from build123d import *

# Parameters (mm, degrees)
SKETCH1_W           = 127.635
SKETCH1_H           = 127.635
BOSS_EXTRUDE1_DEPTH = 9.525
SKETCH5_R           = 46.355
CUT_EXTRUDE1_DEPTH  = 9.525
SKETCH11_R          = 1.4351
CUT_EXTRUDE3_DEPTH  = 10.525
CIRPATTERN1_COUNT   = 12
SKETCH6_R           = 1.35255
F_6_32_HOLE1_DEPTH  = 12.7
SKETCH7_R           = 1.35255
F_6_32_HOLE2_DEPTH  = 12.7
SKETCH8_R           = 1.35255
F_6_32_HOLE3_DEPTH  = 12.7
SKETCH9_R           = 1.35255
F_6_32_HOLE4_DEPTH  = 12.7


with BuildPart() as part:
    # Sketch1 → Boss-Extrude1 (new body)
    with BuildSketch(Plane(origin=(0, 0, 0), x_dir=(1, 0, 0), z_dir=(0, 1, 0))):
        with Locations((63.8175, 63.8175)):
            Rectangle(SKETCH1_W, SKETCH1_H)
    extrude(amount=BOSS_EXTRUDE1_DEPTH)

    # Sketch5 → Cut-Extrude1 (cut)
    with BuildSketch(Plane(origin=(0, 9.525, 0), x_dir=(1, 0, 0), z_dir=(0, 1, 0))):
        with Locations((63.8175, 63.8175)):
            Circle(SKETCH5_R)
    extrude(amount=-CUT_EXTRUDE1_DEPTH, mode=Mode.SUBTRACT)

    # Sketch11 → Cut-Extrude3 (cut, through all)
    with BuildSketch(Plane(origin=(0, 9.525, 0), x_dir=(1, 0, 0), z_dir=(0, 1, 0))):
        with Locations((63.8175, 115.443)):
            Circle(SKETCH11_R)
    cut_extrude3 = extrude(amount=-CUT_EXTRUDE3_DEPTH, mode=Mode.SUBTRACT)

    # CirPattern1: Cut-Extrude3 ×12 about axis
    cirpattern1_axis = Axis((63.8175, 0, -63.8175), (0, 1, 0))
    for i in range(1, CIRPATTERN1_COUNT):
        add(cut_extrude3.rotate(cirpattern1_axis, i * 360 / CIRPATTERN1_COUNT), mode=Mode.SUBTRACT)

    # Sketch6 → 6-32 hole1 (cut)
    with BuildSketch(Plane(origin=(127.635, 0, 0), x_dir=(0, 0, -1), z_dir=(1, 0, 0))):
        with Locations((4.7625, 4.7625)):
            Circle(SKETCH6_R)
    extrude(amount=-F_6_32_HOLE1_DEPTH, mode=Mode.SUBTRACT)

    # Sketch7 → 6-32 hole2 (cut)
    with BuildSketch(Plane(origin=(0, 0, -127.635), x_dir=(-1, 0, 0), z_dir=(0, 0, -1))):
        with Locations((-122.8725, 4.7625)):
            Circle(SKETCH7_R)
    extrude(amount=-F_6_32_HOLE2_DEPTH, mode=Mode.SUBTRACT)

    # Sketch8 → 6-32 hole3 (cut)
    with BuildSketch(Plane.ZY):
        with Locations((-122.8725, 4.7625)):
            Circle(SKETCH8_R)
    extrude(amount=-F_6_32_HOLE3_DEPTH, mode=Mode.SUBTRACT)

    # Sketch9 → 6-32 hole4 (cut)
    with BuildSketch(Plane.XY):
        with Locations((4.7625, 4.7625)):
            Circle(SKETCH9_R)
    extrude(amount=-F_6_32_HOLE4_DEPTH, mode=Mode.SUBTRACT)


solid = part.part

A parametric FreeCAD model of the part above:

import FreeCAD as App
import Part
import Sketcher

V = App.Vector
Q = App.Units.Quantity

doc = App.newDocument("Part")
body = doc.addObject("PartDesign::Body", "Body")

# Sketch on XZ plane
sketch1 = body.newObject("Sketcher::SketchObject", "Sketch")
sketch1.AttachmentSupport = (doc.getObject("XZ_Plane"), [""])
sketch1.MapMode = "FlatFace"
sketch1.addGeometry(Part.LineSegment(V(0, -128, 0), V(0, 0, 0)), False)
sketch1.addGeometry(Part.LineSegment(V(0, 0, 0), V(128, 0, 0)), False)
sketch1.addGeometry(Part.LineSegment(V(128, 0, 0), V(128, -128, 0)), False)
sketch1.addGeometry(Part.LineSegment(V(128, -128, 0), V(0, -128, 0)), False)
sketch1.addConstraint(Sketcher.Constraint("Coincident", 0, 2, 1, 1))
sketch1.addConstraint(Sketcher.Constraint("Coincident", 1, 2, 2, 1))
sketch1.addConstraint(Sketcher.Constraint("Coincident", 2, 2, 3, 1))
sketch1.addConstraint(Sketcher.Constraint("Coincident", 3, 2, 0, 1))
sketch1.addConstraint(Sketcher.Constraint("Vertical", 0))
sketch1.addConstraint(Sketcher.Constraint("Horizontal", 1))
sketch1.addConstraint(Sketcher.Constraint("Vertical", 2))
sketch1.addConstraint(Sketcher.Constraint("Horizontal", 3))
sketch1.addConstraint(Sketcher.Constraint("Coincident", 0, 2, -1, 1))
sketch1.addConstraint(Sketcher.Constraint("Equal", 3, 0))
sketch1.addConstraint(Sketcher.Constraint("DistanceX", 1, 1, 1, 2, Q("5.025 in")))
pad1 = body.newObject("PartDesign::Pad", "Pad")
pad1.Profile = sketch1
pad1.Length = Q("0.375 in")
pad1.Reversed = True

# Sketch on XZ plane
sketch2 = body.newObject("Sketcher::SketchObject", "Sketch001")
sketch2.AttachmentSupport = (doc.getObject("XZ_Plane"), [""])
sketch2.MapMode = "FlatFace"
sketch2.AttachmentOffset = App.Placement(V(0, 0, -0.375 * 25.4), App.Rotation())
sketch2.addGeometry(Part.Circle(V(64, -64, 0), V(0, 0, 1), 46), False)
sketch2.addConstraint(Sketcher.Constraint("Diameter", 0, Q("3.65 in")))
sketch2.addConstraint(Sketcher.Constraint("DistanceX", -1, 1, 0, 3, Q("2.5125 in")))
sketch2.addConstraint(Sketcher.Constraint("DistanceY", 0, 3, -1, 1, Q("2.5125 in")))
pocket1 = body.newObject("PartDesign::Pocket", "Pocket")
pocket1.Profile = sketch2
pocket1.Length = Q("0.375 in")
pocket1.Reversed = True

# Sketch on XZ plane
sketch3 = body.newObject("Sketcher::SketchObject", "Sketch002")
sketch3.AttachmentSupport = (doc.getObject("XZ_Plane"), [""])
sketch3.MapMode = "FlatFace"
sketch3.AttachmentOffset = App.Placement(V(0, 0, -0.375 * 25.4), App.Rotation())
sketch3.addGeometry(Part.Circle(V(63.8, -115.4, 0), V(0, 0, 1), 1.4), False)
sketch3.addConstraint(Sketcher.Constraint("Diameter", 0, Q("0.113 in")))
sketch3.addConstraint(Sketcher.Constraint("DistanceY", 0, 3, -1, 1, Q("4.545 in")))
sketch3.addConstraint(Sketcher.Constraint("DistanceX", -1, 1, 0, 3, Q("2.5125 in")))
pocket2 = body.newObject("PartDesign::Pocket", "Pocket001")
pocket2.Profile = sketch3
pocket2.Type = "ThroughAll"
pocket2.Reversed = True
doc.recompute()

datumline = body.newObject("PartDesign::Line", "DatumLine")
datumline.Placement = App.Placement(V(63.8175, 0, -63.8175), App.Rotation(V(0, 0, 1), V(0, 1, 0)))
polarpattern = body.newObject("PartDesign::PolarPattern", "PolarPattern")
polarpattern.Originals = [pocket2]
polarpattern.Axis = (datumline, [""])
polarpattern.Angle = 360
polarpattern.Occurrences = 12
body.Tip = polarpattern

# Sketch on YZ plane
sketch4 = body.newObject("Sketcher::SketchObject", "Sketch003")
sketch4.AttachmentSupport = (doc.getObject("YZ_Plane"), [""])
sketch4.MapMode = "FlatFace"
sketch4.AttachmentOffset = App.Placement(V(0, 0, 5.025 * 25.4), App.Rotation())
sketch4.addGeometry(Part.Circle(V(4.8, -4.8, 0), V(0, 0, 1), 1.4), False)
sketch4.addConstraint(Sketcher.Constraint("Diameter", 0, Q("0.1065 in")))
sketch4.addConstraint(Sketcher.Constraint("DistanceX", -1, 1, 0, 3, Q("0.1875 in")))
sketch4.addConstraint(Sketcher.Constraint("DistanceY", 0, 3, -1, 1, Q("0.1875 in")))
pocket3 = body.newObject("PartDesign::Pocket", "Pocket002")
pocket3.Profile = sketch4
pocket3.Length = Q("0.5 in")

# Sketch on XY plane
sketch5 = body.newObject("Sketcher::SketchObject", "Sketch004")
sketch5.AttachmentSupport = (doc.getObject("XY_Plane"), [""])
sketch5.MapMode = "FlatFace"
sketch5.AttachmentOffset = App.Placement(V(0, 0, -5.025 * 25.4), App.Rotation())
sketch5.addGeometry(Part.Circle(V(122.9, 4.8, 0), V(0, 0, 1), 1.4), False)
sketch5.addConstraint(Sketcher.Constraint("Diameter", 0, Q("0.1065 in")))
sketch5.addConstraint(Sketcher.Constraint("DistanceY", -1, 1, 0, 3, Q("0.1875 in")))
sketch5.addConstraint(Sketcher.Constraint("DistanceX", -1, 1, 0, 3, Q("4.8375 in")))
pocket4 = body.newObject("PartDesign::Pocket", "Pocket003")
pocket4.Profile = sketch5
pocket4.Length = Q("0.5 in")
pocket4.Reversed = True

# Sketch on YZ plane
sketch6 = body.newObject("Sketcher::SketchObject", "Sketch005")
sketch6.AttachmentSupport = (doc.getObject("YZ_Plane"), [""])
sketch6.MapMode = "FlatFace"
sketch6.addGeometry(Part.Circle(V(4.8, -122.9, 0), V(0, 0, 1), 1.4), False)
sketch6.addConstraint(Sketcher.Constraint("Diameter", 0, Q("0.1065 in")))
sketch6.addConstraint(Sketcher.Constraint("DistanceX", -1, 1, 0, 3, Q("0.1875 in")))
sketch6.addConstraint(Sketcher.Constraint("DistanceY", 0, 3, -1, 1, Q("4.8375 in")))
pocket5 = body.newObject("PartDesign::Pocket", "Pocket004")
pocket5.Profile = sketch6
pocket5.Length = Q("0.5 in")
pocket5.Reversed = True

# Sketch on XY plane
sketch7 = body.newObject("Sketcher::SketchObject", "Sketch006")
sketch7.AttachmentSupport = (doc.getObject("XY_Plane"), [""])
sketch7.MapMode = "FlatFace"
sketch7.addGeometry(Part.Circle(V(4.8, 4.8, 0), V(0, 0, 1), 1.4), False)
sketch7.addConstraint(Sketcher.Constraint("Diameter", 0, Q("0.1065 in")))
sketch7.addConstraint(Sketcher.Constraint("DistanceX", -1, 1, 0, 3, Q("0.1875 in")))
sketch7.addConstraint(Sketcher.Constraint("DistanceY", -1, 1, 0, 3, Q("0.1875 in")))
pocket6 = body.newObject("PartDesign::Pocket", "Pocket005")
pocket6.Profile = sketch7
pocket6.Length = Q("0.5 in")

doc.recompute()
